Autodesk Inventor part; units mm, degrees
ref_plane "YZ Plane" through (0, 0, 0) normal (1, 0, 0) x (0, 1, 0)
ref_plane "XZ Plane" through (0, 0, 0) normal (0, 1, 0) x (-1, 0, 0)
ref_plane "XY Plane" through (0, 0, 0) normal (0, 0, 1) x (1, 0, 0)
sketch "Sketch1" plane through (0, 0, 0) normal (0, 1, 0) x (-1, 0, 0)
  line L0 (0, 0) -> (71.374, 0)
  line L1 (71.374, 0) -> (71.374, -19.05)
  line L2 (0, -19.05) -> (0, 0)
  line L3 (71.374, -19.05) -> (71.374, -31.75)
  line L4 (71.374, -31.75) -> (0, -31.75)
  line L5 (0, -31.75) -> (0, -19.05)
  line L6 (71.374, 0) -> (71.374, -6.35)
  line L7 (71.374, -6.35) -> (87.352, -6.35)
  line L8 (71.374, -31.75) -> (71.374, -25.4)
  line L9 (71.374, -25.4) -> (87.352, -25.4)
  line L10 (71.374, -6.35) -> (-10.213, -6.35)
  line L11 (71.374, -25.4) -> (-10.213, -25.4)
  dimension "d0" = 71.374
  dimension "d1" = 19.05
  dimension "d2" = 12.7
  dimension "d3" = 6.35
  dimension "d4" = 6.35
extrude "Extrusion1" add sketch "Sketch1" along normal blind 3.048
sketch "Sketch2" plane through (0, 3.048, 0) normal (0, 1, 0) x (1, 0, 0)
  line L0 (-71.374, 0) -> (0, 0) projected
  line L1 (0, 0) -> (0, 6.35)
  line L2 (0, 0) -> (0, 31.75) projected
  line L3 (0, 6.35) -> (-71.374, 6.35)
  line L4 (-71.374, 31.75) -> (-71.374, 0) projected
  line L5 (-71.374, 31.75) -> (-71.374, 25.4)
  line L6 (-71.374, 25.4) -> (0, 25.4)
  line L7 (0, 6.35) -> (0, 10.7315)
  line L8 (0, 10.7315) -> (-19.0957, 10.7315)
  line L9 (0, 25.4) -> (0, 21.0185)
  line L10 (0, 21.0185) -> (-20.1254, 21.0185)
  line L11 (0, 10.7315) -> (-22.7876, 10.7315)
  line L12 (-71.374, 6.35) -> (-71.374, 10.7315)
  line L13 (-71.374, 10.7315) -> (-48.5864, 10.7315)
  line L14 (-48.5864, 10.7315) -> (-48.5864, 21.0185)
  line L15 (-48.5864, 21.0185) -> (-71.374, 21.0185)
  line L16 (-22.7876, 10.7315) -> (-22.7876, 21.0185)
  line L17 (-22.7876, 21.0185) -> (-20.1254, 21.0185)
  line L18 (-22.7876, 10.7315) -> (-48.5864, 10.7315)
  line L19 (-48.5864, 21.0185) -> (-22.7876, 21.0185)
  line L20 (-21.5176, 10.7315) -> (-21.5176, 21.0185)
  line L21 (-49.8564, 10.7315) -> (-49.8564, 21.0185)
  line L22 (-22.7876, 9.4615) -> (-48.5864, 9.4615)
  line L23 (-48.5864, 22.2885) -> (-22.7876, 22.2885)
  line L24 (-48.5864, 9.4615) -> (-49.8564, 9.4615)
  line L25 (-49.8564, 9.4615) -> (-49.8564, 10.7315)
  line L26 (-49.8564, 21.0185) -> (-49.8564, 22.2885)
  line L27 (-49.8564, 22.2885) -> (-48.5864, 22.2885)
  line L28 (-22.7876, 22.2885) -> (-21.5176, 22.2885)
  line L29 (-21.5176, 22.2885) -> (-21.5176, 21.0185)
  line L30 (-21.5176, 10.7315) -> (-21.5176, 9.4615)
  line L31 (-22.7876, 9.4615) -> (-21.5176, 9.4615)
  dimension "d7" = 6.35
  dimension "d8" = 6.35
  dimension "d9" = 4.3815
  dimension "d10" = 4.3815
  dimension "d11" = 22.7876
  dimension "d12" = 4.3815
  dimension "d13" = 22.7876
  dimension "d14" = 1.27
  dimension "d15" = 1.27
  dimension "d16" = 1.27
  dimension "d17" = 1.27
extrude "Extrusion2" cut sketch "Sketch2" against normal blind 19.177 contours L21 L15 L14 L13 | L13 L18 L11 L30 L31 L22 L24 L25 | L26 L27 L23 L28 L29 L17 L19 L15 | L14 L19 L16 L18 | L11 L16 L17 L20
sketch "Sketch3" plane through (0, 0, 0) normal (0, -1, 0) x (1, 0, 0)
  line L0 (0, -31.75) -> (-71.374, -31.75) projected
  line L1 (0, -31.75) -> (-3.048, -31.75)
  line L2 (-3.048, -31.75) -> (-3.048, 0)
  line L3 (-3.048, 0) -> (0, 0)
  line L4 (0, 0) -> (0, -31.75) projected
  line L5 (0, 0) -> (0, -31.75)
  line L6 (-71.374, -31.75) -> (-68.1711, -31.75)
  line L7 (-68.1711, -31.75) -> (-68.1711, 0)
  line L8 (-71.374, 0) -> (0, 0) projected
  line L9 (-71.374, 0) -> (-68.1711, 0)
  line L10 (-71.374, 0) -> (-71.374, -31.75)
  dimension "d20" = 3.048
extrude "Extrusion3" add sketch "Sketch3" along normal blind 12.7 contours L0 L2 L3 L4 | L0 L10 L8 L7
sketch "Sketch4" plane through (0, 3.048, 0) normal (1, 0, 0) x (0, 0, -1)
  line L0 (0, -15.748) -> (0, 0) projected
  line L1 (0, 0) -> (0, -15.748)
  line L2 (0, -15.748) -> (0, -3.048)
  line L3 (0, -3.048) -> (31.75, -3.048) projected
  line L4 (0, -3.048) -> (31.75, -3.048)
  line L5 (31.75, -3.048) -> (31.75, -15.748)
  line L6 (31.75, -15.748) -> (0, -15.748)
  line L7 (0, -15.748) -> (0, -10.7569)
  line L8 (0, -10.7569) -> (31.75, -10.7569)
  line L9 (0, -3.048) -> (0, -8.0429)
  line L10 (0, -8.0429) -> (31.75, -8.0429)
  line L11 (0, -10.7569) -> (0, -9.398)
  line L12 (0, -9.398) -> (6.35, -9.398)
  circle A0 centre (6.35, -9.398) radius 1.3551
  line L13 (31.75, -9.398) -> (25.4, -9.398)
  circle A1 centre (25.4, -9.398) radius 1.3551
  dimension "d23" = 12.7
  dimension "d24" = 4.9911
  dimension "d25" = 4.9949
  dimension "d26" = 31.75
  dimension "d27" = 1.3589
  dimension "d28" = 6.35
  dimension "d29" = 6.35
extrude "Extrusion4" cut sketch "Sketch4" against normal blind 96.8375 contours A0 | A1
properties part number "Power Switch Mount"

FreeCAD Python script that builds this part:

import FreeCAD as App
import Part
import Sketcher
Q = App.Units.Quantity


def add_polygon(sketch, points):
    """Adds a closed chain of lines whose ends are joined by coincident constraints."""
    first, n = sketch.GeometryCount, len(points)
    for a, b in zip(points, points[1:] + points[:1]):
        sketch.addGeometry(Part.LineSegment(App.Vector(*a, 0), App.Vector(*b, 0)), False)
    for i in range(n):
        sketch.addConstraint(Sketcher.Constraint("Coincident", first + i, 2, first + (i + 1) % n, 1))

doc = App.newDocument("Part")
params = doc.addObject("Spreadsheet::Sheet", "Params")
for row, (alias, value) in enumerate([
    ("sketch1_width", "2.81 in"),
    ("sketch1_height", "1.25 in"),
    ("pad1_length", "0.12 in"),
    ("sketch2_height", "0.505 in"),
    ("pocket1_length", "0.755 in"),
    ("sketch3_width", "0.12 in"),
    ("sketch3_height", "1.25 in"),
    ("pad2_length", "0.5 in"),
    ("pocket2_length", "3.8125 in"),
], start=1):
    params.set(f"A{row}", alias)
    params.set(f"B{row}", "=" + value)
    params.setAlias(f"B{row}", alias)

body = doc.addObject("PartDesign::Body", "Body")

# Sketch on XZ plane
sketch1 = body.newObject("Sketcher::SketchObject", "Sketch")
sketch1.AttachmentSupport = (doc.getObject("XZ_Plane"), [""])
sketch1.MapMode = "FlatFace"
add_polygon(sketch1, [(-71, 0), (0, 0), (0, -32), (-71, -32)])  # lines 0-3
sketch1.addConstraint([
    Sketcher.Constraint("Horizontal", 0),
    Sketcher.Constraint("Vertical", 1),
    Sketcher.Constraint("Horizontal", 2),
    Sketcher.Constraint("Vertical", 3),
    Sketcher.Constraint("Coincident", 0, 2, -1, 1),
    Sketcher.Constraint("DistanceX", 0, 1, 0, 2, Q("2.81 in")),
    Sketcher.Constraint("DistanceY", 1, 2, 1, 1, Q("1.25 in")),
])
sketch1.setExpression("Constraints[9]", "Params.sketch1_width")
sketch1.setExpression("Constraints[10]", "Params.sketch1_height")
pad1 = body.newObject("PartDesign::Pad", "Pad")
pad1.Profile = sketch1
pad1.setExpression("Length", "Params.pad1_length")
pad1.Reversed = True

# Sketch on XZ plane
sketch2 = body.newObject("Sketcher::SketchObject", "Sketch001")
sketch2.AttachmentSupport = (doc.getObject("XZ_Plane"), [""])
sketch2.MapMode = "FlatFace"
sketch2.AttachmentOffset = App.Placement(App.Vector(0, 0, -0.12 * 25.4), App.Rotation())
add_polygon(sketch2, [(-50, -9), (-22, -9), (-22, -22), (-50, -22)])  # lines 0-3
sketch2.addConstraint([
    Sketcher.Constraint("Horizontal", 0),
    Sketcher.Constraint("Vertical", 1),
    Sketcher.Constraint("Horizontal", 2),
    Sketcher.Constraint("Vertical", 3),
    Sketcher.Constraint("DistanceY", 1, 2, 1, 1, Q("0.505 in")),
    Sketcher.Constraint("DistanceX", 0, 1, 0, 2, Q("1.1157 in")),
    Sketcher.Constraint("DistanceY", 0, 2, -1, 1, Q("0.3725 in")),
    Sketcher.Constraint("DistanceX", 0, 2, -1, 1, 21.5176),
])
sketch2.setExpression("Constraints[8]", "Params.sketch2_height")
pocket1 = body.newObject("PartDesign::Pocket", "Pocket")
pocket1.Profile = sketch2
pocket1.setExpression("Length", "Params.pocket1_length")
pocket1.Reversed = True

# Sketch on XZ plane
sketch3 = body.newObject("Sketcher::SketchObject", "Sketch002")
sketch3.AttachmentSupport = (doc.getObject("XZ_Plane"), [""])
sketch3.MapMode = "FlatFace"
add_polygon(sketch3, [(-3, -31.8), (0, -31.8), (0, 0), (-3, 0)])  # lines 0-3
add_polygon(sketch3, [(-71.4, -31.8), (-68.2, -31.8), (-68.2, 0), (-71.4, 0)])  # lines 4-7
sketch3.addConstraint([
    Sketcher.Constraint("Horizontal", 0),
    Sketcher.Constraint("Vertical", 1),
    Sketcher.Constraint("Horizontal", 2),
    Sketcher.Constraint("Vertical", 3),
    Sketcher.Constraint("Horizontal", 4),
    Sketcher.Constraint("Vertical", 5),
    Sketcher.Constraint("Horizontal", 6),
    Sketcher.Constraint("Vertical", 7),
    Sketcher.Constraint("Coincident", 1, 2, -1, 1),
    Sketcher.Constraint("PointOnObject", 5, 2, -1),
    Sketcher.Constraint("Horizontal", 3, 2, 4, 2),
    Sketcher.Constraint("DistanceX", 0, 1, 0, 2, Q("0.12 in")),
    Sketcher.Constraint("DistanceY", 1, 1, 1, 2, Q("1.25 in")),
    Sketcher.Constraint("DistanceX", 6, 2, -1, 1, Q("2.81 in")),
    Sketcher.Constraint("DistanceX", 4, 1, 4, 2, Q("0.1261 in")),
])
sketch3.setExpression("Constraints[19]", "Params.sketch3_width")
sketch3.setExpression("Constraints[20]", "Params.sketch3_height")
pad2 = body.newObject("PartDesign::Pad", "Pad001")
pad2.Profile = sketch3
pad2.setExpression("Length", "Params.pad2_length")

# Sketch on YZ plane
sketch4 = body.newObject("Sketcher::SketchObject", "Sketch003")
sketch4.AttachmentSupport = (doc.getObject("YZ_Plane"), [""])
sketch4.MapMode = "FlatFace"
sketch4.addGeometry([
    Part.Circle(App.Vector(-6.3, -6.3, 0), App.Vector(0, 0, 1), 1.4),
    Part.Circle(App.Vector(-6.3, -25.4, 0), App.Vector(0, 0, 1), 1.4),
], False)
sketch4.addConstraint([
    Sketcher.Constraint("Equal", 0, 1),
    Sketcher.Constraint("Vertical", 0, 3, 1, 3),
    Sketcher.Constraint("DistanceX", 0, 3, -1, 1, Q("0.25 in")),
    Sketcher.Constraint("DistanceY", 0, 3, -1, 1, Q("0.25 in")),
    Sketcher.Constraint("DistanceY", 1, 3, -1, 1, Q("1 in")),
    Sketcher.Constraint("Diameter", 0, Q("0.1067 in")),
])
pocket2 = body.newObject("PartDesign::Pocket", "Pocket001")
pocket2.Profile = sketch4
pocket2.setExpression("Length", "Params.pocket2_length")

doc.recompute()
